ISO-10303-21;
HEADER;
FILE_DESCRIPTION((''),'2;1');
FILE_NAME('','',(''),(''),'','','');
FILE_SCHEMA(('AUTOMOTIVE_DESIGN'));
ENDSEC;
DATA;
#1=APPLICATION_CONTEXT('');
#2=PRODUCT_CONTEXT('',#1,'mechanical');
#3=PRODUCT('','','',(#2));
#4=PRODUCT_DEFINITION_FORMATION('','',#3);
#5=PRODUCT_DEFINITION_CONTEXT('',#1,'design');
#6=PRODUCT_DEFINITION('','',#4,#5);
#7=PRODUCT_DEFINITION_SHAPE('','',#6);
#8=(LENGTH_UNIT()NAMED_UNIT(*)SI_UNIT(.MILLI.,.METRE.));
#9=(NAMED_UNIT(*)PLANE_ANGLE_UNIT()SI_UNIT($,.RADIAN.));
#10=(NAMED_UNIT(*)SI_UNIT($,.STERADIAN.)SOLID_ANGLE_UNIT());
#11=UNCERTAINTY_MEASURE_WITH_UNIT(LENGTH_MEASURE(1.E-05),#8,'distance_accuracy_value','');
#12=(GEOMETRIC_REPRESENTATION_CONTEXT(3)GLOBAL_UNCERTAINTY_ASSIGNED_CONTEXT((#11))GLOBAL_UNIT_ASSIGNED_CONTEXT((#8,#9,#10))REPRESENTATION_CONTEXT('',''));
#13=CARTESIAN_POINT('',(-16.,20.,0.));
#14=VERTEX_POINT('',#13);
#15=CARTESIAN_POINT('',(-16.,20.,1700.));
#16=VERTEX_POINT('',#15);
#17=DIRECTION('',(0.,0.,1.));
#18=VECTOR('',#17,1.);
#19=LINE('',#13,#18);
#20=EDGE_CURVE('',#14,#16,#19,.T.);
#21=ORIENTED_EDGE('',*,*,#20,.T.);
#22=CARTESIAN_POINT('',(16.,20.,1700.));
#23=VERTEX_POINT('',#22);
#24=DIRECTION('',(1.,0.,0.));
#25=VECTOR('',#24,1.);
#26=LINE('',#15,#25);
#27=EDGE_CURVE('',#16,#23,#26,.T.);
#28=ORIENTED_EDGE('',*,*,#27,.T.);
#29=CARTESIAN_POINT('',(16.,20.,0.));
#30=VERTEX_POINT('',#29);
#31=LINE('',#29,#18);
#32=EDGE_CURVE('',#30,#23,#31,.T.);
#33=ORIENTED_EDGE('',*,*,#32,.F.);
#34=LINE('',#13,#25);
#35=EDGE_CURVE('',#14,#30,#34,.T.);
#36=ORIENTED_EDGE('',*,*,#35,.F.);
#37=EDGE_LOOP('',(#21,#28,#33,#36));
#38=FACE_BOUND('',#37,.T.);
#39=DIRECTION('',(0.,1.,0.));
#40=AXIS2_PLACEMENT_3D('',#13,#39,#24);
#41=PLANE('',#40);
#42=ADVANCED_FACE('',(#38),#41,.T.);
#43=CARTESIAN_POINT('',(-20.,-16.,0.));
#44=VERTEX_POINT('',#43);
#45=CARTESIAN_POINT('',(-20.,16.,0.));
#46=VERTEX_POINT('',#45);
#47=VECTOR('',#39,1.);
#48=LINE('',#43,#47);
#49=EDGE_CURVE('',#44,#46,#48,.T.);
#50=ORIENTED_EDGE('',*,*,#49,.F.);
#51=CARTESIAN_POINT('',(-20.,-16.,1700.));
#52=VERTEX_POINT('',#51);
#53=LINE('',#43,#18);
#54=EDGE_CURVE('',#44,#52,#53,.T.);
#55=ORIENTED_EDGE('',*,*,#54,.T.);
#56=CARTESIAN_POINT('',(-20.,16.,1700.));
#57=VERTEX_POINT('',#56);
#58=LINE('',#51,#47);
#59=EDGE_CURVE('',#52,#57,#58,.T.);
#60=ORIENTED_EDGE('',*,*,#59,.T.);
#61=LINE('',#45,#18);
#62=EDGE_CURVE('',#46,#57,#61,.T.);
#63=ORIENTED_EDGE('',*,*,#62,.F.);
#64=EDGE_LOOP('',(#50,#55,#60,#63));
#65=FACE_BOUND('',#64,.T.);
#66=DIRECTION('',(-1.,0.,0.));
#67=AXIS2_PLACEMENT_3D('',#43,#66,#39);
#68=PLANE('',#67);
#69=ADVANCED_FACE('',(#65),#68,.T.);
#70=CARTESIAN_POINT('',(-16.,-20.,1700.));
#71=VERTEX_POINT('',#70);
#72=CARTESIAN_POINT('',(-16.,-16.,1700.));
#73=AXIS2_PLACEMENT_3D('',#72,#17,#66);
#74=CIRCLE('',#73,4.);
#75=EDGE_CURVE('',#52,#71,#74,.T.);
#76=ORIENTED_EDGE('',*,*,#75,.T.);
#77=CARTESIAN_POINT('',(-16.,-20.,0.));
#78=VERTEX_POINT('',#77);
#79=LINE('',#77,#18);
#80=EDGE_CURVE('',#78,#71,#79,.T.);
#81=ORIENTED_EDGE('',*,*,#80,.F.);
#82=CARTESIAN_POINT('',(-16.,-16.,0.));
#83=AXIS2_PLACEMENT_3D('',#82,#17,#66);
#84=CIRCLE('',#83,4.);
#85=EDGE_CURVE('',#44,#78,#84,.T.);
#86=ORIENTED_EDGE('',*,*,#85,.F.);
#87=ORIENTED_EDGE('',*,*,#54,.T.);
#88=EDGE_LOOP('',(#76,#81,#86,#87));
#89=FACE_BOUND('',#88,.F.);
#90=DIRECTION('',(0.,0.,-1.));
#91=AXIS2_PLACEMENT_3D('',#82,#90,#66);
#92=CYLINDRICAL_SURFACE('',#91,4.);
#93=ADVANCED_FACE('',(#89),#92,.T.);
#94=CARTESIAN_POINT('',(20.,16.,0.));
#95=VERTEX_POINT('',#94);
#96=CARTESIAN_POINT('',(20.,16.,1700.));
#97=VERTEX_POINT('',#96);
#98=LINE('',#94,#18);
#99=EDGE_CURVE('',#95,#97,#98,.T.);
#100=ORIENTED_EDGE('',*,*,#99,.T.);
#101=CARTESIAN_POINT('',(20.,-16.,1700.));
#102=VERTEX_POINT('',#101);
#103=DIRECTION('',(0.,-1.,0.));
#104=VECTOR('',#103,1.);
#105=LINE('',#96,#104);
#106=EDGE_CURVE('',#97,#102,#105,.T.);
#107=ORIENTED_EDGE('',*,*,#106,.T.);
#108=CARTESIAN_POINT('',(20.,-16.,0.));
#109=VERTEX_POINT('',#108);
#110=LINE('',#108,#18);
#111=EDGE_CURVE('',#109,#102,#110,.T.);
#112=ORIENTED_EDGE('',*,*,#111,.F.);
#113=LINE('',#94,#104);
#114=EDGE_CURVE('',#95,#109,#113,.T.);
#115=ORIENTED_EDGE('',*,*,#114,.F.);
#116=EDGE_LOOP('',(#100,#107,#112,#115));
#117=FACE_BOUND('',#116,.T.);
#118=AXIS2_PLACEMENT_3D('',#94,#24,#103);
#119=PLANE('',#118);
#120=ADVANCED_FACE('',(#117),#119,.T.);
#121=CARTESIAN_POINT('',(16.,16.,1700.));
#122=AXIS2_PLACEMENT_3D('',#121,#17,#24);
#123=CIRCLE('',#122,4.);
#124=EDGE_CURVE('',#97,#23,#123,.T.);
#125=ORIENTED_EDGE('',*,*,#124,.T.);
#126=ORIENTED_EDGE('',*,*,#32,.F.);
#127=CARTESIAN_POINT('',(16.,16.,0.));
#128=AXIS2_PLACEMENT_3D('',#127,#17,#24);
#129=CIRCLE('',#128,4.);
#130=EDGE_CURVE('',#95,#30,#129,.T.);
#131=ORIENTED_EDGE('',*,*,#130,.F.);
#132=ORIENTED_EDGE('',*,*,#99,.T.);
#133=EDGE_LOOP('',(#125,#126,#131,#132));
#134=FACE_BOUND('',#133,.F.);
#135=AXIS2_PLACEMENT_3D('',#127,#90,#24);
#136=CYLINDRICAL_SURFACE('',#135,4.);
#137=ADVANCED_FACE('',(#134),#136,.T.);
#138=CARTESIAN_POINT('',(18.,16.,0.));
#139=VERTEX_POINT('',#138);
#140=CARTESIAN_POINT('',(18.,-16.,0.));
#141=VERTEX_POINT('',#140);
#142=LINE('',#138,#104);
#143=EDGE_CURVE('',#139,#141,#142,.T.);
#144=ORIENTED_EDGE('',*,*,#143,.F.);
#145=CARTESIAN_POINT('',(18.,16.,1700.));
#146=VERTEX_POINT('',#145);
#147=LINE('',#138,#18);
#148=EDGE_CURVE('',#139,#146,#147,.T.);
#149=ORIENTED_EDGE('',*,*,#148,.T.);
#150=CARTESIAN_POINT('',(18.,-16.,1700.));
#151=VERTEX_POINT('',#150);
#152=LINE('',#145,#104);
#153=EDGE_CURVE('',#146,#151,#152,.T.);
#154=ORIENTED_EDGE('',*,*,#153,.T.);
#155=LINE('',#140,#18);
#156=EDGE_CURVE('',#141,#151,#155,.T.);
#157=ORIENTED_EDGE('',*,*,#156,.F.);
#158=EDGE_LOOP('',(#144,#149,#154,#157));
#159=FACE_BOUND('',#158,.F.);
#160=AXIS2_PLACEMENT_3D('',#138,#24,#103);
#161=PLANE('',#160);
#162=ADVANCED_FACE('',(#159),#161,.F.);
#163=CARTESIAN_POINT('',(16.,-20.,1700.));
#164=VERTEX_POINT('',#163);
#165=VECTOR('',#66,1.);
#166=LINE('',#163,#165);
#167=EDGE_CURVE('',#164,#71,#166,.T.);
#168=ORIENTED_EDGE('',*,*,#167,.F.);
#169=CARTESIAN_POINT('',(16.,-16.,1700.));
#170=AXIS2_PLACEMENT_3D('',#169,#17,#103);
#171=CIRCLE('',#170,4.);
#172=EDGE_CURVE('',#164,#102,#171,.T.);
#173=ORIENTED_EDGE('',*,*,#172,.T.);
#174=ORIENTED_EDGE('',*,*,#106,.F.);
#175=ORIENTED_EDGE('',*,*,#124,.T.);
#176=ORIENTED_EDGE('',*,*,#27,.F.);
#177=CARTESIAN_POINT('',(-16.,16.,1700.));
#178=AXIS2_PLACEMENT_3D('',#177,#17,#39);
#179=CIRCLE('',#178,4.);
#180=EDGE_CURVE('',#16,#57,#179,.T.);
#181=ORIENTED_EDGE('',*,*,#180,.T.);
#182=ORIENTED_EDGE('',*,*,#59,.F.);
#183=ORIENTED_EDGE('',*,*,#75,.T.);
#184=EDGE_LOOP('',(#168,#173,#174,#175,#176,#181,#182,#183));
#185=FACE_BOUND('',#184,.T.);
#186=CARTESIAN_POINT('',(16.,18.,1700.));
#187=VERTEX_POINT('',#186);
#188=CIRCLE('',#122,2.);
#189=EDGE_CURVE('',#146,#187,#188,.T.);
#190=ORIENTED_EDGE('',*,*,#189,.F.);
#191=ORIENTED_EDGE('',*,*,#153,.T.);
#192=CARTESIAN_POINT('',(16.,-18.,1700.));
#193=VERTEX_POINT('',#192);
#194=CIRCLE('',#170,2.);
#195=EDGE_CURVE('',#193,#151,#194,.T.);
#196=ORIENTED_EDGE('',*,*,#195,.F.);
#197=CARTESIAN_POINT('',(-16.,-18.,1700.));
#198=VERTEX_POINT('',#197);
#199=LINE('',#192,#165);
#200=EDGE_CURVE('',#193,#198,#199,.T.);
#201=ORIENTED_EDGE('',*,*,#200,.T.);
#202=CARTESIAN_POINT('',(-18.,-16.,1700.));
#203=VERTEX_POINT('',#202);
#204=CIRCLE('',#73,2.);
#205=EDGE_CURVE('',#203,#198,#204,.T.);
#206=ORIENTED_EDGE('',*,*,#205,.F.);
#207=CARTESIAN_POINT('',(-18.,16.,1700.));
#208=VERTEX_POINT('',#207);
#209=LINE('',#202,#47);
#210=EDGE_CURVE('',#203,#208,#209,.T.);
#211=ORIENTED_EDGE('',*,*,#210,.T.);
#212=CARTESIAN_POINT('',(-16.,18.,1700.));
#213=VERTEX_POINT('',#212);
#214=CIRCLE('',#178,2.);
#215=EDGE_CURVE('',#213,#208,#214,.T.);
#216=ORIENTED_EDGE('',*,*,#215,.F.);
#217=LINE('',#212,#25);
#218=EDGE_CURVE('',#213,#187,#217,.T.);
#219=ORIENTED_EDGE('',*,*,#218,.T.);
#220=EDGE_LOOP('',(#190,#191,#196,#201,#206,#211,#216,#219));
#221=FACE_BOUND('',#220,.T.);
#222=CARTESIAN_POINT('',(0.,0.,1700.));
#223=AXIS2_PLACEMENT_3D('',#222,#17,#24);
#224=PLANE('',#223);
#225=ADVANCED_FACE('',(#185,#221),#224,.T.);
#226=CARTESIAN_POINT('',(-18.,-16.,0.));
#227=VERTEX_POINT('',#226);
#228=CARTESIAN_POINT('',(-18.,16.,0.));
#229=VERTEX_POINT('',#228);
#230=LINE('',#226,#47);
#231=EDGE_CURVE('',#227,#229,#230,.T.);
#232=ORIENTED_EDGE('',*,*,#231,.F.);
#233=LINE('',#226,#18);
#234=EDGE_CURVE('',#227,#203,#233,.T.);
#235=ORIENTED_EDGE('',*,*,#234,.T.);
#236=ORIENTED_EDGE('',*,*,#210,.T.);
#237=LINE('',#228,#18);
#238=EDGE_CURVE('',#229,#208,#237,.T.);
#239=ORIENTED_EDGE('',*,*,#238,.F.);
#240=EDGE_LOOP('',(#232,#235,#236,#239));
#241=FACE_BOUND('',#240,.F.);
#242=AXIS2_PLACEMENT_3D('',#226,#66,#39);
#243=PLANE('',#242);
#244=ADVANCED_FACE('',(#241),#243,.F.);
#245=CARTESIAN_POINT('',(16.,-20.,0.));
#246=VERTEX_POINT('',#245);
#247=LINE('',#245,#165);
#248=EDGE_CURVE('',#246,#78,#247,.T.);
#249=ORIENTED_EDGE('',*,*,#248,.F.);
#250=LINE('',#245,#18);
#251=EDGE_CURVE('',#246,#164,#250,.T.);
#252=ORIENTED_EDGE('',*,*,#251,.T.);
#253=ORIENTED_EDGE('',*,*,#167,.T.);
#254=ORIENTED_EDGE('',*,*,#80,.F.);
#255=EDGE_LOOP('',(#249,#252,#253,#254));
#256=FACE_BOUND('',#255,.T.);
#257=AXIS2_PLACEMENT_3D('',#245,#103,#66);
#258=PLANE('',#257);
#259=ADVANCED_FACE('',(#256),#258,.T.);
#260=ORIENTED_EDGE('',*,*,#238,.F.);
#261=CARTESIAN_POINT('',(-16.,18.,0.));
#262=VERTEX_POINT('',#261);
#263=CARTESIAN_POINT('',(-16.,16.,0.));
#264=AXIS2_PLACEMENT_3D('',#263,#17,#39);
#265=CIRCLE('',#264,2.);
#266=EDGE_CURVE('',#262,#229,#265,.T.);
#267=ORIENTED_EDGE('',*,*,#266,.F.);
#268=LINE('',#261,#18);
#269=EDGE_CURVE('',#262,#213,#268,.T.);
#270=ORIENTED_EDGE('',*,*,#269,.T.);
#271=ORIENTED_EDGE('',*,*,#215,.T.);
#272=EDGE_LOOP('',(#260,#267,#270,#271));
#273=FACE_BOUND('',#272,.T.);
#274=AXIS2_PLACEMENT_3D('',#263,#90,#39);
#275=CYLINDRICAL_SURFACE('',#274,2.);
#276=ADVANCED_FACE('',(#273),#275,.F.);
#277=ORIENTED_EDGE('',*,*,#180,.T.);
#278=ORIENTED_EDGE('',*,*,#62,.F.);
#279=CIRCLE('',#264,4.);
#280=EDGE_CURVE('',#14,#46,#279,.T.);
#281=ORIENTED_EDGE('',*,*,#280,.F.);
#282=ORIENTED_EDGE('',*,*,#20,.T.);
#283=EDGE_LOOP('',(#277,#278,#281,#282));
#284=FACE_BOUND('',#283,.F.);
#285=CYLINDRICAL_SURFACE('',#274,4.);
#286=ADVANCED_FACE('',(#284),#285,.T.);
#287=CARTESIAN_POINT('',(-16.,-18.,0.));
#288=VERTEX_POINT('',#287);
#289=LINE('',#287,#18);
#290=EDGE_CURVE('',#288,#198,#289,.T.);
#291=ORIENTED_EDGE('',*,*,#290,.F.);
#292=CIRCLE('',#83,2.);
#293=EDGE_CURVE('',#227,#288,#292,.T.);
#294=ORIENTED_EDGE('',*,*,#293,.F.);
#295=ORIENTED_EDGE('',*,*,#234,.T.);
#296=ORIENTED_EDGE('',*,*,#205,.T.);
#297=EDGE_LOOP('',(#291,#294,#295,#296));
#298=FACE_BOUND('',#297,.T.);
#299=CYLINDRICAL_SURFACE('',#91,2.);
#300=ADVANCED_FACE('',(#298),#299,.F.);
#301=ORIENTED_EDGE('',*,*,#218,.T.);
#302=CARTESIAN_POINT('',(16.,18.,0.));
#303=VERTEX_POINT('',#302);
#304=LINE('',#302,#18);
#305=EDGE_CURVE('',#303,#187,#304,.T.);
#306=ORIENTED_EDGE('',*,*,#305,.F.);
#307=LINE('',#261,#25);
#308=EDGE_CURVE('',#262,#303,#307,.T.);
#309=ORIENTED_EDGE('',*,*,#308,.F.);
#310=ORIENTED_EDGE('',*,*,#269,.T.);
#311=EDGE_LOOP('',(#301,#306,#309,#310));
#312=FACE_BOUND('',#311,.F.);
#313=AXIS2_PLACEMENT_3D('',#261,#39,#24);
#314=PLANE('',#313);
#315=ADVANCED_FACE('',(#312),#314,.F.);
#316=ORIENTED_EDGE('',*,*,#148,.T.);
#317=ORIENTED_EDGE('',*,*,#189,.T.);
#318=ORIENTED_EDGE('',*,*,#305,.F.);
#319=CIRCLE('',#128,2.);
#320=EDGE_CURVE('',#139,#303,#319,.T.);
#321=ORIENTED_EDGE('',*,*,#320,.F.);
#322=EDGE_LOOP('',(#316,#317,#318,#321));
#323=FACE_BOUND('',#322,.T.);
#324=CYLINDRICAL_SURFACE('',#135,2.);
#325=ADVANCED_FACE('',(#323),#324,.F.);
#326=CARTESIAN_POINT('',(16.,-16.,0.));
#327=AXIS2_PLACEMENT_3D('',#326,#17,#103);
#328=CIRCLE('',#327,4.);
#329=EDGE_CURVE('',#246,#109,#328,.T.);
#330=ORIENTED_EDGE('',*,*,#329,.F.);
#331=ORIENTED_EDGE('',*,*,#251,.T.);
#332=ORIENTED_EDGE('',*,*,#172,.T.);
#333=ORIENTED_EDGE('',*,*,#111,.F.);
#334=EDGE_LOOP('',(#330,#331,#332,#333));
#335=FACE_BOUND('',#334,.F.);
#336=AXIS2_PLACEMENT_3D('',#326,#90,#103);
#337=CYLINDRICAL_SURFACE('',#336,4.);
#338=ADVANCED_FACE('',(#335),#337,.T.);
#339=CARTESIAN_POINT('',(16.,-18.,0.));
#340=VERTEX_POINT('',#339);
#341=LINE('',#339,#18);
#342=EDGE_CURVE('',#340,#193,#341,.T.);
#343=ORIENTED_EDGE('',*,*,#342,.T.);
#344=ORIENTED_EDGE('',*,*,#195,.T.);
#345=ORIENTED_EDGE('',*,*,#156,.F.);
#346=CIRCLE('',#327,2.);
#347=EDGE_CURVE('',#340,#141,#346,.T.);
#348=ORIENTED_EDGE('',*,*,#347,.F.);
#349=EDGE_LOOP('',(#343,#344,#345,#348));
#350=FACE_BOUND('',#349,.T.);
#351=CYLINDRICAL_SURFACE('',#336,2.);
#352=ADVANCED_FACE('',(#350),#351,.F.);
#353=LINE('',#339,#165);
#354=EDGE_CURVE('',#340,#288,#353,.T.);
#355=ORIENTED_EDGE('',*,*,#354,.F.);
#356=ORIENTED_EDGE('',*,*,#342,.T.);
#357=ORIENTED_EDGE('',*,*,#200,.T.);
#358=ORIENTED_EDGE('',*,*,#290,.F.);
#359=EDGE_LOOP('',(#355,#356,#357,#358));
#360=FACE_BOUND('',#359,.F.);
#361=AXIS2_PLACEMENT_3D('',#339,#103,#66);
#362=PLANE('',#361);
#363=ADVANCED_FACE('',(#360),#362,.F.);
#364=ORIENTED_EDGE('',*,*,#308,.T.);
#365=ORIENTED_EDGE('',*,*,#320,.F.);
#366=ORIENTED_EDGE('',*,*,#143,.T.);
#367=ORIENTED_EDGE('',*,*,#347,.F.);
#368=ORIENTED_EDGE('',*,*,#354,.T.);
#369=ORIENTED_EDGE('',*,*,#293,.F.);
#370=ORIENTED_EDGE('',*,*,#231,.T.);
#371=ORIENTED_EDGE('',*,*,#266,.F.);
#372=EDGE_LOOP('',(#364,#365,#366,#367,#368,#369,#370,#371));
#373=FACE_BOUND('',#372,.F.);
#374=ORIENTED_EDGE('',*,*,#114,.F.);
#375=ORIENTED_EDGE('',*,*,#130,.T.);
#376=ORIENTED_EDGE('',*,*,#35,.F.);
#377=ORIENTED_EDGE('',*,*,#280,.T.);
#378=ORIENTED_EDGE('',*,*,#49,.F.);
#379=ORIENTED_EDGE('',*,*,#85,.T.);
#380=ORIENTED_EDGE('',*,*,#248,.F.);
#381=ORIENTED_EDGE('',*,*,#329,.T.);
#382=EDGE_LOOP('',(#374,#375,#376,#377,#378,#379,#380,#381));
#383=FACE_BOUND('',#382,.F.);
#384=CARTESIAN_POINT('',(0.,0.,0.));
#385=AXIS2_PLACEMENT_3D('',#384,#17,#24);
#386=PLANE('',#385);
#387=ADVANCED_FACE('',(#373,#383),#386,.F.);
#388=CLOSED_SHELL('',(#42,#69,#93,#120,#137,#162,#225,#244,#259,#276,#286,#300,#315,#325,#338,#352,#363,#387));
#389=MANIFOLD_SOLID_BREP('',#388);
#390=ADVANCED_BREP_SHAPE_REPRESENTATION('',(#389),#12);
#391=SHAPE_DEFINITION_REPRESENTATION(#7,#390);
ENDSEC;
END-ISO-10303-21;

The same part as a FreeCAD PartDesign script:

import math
import FreeCAD as App
import Part
import Sketcher

V = App.Vector

doc = App.newDocument("Part")
body = doc.addObject("PartDesign::Body", "Body")

# Sketch on XY plane
sketch1 = body.newObject("Sketcher::SketchObject", "Sketch")
sketch1.AttachmentSupport = (doc.getObject("XY_Plane"), [""])
sketch1.MapMode = "FlatFace"
sketch1.addGeometry([
    Part.LineSegment(V(-20, 16, 0), V(-20, -16, 0)),  # 0
    Part.ArcOfCircle(Part.Circle(V(-16, -16, 0), V(0, 0, 1), 4), math.radians(180), math.radians(270)),  # 1
    Part.LineSegment(V(-16, -20, 0), V(16, -20, 0)),  # 2
    Part.ArcOfCircle(Part.Circle(V(16, -16, 0), V(0, 0, 1), 4), math.radians(-90), math.radians(0)),  # 3
    Part.LineSegment(V(20, -16, 0), V(20, 16, 0)),  # 4
    Part.ArcOfCircle(Part.Circle(V(16, 16, 0), V(0, 0, 1), 4), math.radians(0), math.radians(90)),  # 5
    Part.LineSegment(V(16, 20, 0), V(-16, 20, 0)),  # 6
    Part.ArcOfCircle(Part.Circle(V(-16, 16, 0), V(0, 0, 1), 4), math.radians(90), math.radians(180)),  # 7
    Part.ArcOfCircle(Part.Circle(V(-16, 16, 0), V(0, 0, 1), 2), math.radians(90), math.radians(180)),  # 8
    Part.LineSegment(V(-16, 18, 0), V(16, 18, 0)),  # 9
    Part.ArcOfCircle(Part.Circle(V(16, 16, 0), V(0, 0, 1), 2), math.radians(0), math.radians(90)),  # 10
    Part.LineSegment(V(18, 16, 0), V(18, -16, 0)),  # 11
    Part.ArcOfCircle(Part.Circle(V(16, -16, 0), V(0, 0, 1), 2), math.radians(-90), math.radians(0)),  # 12
    Part.LineSegment(V(16, -18, 0), V(-16, -18, 0)),  # 13
    Part.ArcOfCircle(Part.Circle(V(-16, -16, 0), V(0, 0, 1), 2), math.radians(180), math.radians(270)),  # 14
    Part.LineSegment(V(-18, -16, 0), V(-18, 16, 0)),  # 15
], False)
sketch1.addConstraint([
    Sketcher.Constraint("Tangent", 0, 2, 1, 1),
    Sketcher.Constraint("Tangent", 1, 2, 2, 1),
    Sketcher.Constraint("Tangent", 2, 2, 3, 1),
    Sketcher.Constraint("Tangent", 3, 2, 4, 1),
    Sketcher.Constraint("Tangent", 4, 2, 5, 1),
    Sketcher.Constraint("Tangent", 5, 2, 6, 1),
    Sketcher.Constraint("Tangent", 6, 2, 7, 1),
    Sketcher.Constraint("Tangent", 7, 2, 0, 1),
    Sketcher.Constraint("Tangent", 8, 1, 9, 1),
    Sketcher.Constraint("Tangent", 9, 2, 10, 2),
    Sketcher.Constraint("Tangent", 10, 1, 11, 1),
    Sketcher.Constraint("Tangent", 11, 2, 12, 2),
    Sketcher.Constraint("Tangent", 12, 1, 13, 1),
    Sketcher.Constraint("Tangent", 13, 2, 14, 2),
    Sketcher.Constraint("Tangent", 14, 1, 15, 1),
    Sketcher.Constraint("Tangent", 15, 2, 8, 2),
    Sketcher.Constraint("Vertical", 0),
    Sketcher.Constraint("Horizontal", 2),
    Sketcher.Constraint("Vertical", 4),
    Sketcher.Constraint("Horizontal", 6),
    Sketcher.Constraint("Horizontal", 9),
    Sketcher.Constraint("Vertical", 11),
    Sketcher.Constraint("Horizontal", 13),
    Sketcher.Constraint("Vertical", 15),
    Sketcher.Constraint("Coincident", 8, 3, 7, 3),
    Sketcher.Constraint("Coincident", 10, 3, 5, 3),
    Sketcher.Constraint("Coincident", 12, 3, 3, 3),
    Sketcher.Constraint("Equal", 1, 3),
    Sketcher.Constraint("Equal", 3, 5),
    Sketcher.Constraint("Equal", 5, 7),
    Sketcher.Constraint("Equal", 12, 14),
    Sketcher.Constraint("Symmetric", 1, 3, 5, 3, -1, 1),
    Sketcher.Constraint("Equal", 13, 0),
    Sketcher.Constraint("Radius", 1, 4.0),
    Sketcher.Constraint("Radius", 8, 2.0),
    Sketcher.Constraint("DistanceX", 0, 2, -1, 1, 20.0),
])
pad1 = body.newObject("PartDesign::Pad", "Pad")
pad1.Profile = sketch1
pad1.Length = 1700

doc.recompute()
